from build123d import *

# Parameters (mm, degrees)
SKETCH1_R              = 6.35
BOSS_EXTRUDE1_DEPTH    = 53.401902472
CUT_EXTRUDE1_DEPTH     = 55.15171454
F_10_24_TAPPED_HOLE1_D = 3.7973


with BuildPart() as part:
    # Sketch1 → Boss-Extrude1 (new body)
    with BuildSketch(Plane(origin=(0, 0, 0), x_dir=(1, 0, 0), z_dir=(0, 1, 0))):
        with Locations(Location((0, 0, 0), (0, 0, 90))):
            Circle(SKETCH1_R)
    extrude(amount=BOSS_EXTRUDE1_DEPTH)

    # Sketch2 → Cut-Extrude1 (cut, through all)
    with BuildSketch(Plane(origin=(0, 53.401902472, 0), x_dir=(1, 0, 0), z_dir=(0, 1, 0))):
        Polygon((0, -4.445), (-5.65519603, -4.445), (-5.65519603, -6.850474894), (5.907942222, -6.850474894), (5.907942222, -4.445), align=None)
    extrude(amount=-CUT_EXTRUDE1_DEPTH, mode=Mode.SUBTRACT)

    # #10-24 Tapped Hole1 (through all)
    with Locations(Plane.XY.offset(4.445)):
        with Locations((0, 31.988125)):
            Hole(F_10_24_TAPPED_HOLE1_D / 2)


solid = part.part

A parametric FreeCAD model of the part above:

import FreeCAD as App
import Part
import Sketcher
from FreeCAD import Vector
Q = App.Units.Quantity

doc = App.newDocument("Part")
body = doc.addObject("PartDesign::Body", "Body")

# Sketch on XZ plane
sketch1 = body.newObject("Sketcher::SketchObject", "Sketch")
sketch1.AttachmentSupport = (doc.getObject("XZ_Plane"), [""])
sketch1.MapMode = "FlatFace"
sketch1.addGeometry(Part.Circle(Vector(0, 0, 0), Vector(0, 0, 1), 6.35), False)
sketch1.addConstraint([
    Sketcher.Constraint("Coincident", 0, 3, -1, 1),
    Sketcher.Constraint("Diameter", 0, Q("0.5 in")),
])
pad1 = body.newObject("PartDesign::Pad", "Pad")
pad1.Profile = sketch1
pad1.Length = 53.401902
pad1.Reversed = True

# Sketch on XZ plane
sketch2 = body.newObject("Sketcher::SketchObject", "Sketch001")
sketch2.AttachmentSupport = (doc.getObject("XZ_Plane"), [""])
sketch2.MapMode = "FlatFace"
sketch2.AttachmentOffset = App.Placement(Vector(0, 0, -53.401902), App.Rotation())
sketch2.addGeometry([
    Part.LineSegment(Vector(-5.655196, 4.445, 0), Vector(-5.655196, 6.850475, 0)),
    Part.LineSegment(Vector(-5.655196, 6.850475, 0), Vector(5.907942, 6.850475, 0)),
    Part.LineSegment(Vector(5.907942, 6.850475, 0), Vector(5.907942, 4.445, 0)),
    Part.LineSegment(Vector(5.907942, 4.445, 0), Vector(-5.655196, 4.445, 0)),
], False)
sketch2.addConstraint([
    Sketcher.Constraint("Coincident", 0, 2, 1, 1),
    Sketcher.Constraint("Coincident", 1, 2, 2, 1),
    Sketcher.Constraint("Coincident", 2, 2, 3, 1),
    Sketcher.Constraint("Coincident", 3, 2, 0, 1),
    Sketcher.Constraint("Vertical", 0),
    Sketcher.Constraint("Horizontal", 1),
    Sketcher.Constraint("Vertical", 2),
    Sketcher.Constraint("Horizontal", 3),
    Sketcher.Constraint("DistanceY", -1, 1, 2, 2, Q("0.175 in")),
    Sketcher.Constraint("DistanceX", 1, 1, 1, 2, 11.563138),
    Sketcher.Constraint("DistanceY", 0, 1, 0, 2, 2.405475),
    Sketcher.Constraint("DistanceX", 0, 2, -1, 1, 5.655196),
])
pocket1 = body.newObject("PartDesign::Pocket", "Pocket")
pocket1.Profile = sketch2
pocket1.Type = "ThroughAll"
pocket1.Reversed = True

# Sketch on XY plane
sketch3 = body.newObject("Sketcher::SketchObject", "Sketch002")
sketch3.AttachmentSupport = (doc.getObject("XY_Plane"), [""])
sketch3.MapMode = "FlatFace"
sketch3.AttachmentOffset = App.Placement(Vector(0, 0, 0.175 * 25.4), App.Rotation())
sketch3.addGeometry(Part.Circle(Vector(0, 31.988125, 0), Vector(0, 0, 1), 1.89865), False)
sketch3.addConstraint([
    Sketcher.Constraint("PointOnObject", 0, 3, -2),
    Sketcher.Constraint("Diameter", 0, Q("0.1495 in")),
    Sketcher.Constraint("DistanceY", -1, 1, 0, 3, 31.988125),
])
doc.recompute()
hole = body.newObject("PartDesign::Hole", "Hole")
hole.Profile = sketch3
hole.ThreadType = "None"
hole.Diameter = Q("0.1495 in")
hole.DepthType = "ThroughAll"

doc.recompute()
